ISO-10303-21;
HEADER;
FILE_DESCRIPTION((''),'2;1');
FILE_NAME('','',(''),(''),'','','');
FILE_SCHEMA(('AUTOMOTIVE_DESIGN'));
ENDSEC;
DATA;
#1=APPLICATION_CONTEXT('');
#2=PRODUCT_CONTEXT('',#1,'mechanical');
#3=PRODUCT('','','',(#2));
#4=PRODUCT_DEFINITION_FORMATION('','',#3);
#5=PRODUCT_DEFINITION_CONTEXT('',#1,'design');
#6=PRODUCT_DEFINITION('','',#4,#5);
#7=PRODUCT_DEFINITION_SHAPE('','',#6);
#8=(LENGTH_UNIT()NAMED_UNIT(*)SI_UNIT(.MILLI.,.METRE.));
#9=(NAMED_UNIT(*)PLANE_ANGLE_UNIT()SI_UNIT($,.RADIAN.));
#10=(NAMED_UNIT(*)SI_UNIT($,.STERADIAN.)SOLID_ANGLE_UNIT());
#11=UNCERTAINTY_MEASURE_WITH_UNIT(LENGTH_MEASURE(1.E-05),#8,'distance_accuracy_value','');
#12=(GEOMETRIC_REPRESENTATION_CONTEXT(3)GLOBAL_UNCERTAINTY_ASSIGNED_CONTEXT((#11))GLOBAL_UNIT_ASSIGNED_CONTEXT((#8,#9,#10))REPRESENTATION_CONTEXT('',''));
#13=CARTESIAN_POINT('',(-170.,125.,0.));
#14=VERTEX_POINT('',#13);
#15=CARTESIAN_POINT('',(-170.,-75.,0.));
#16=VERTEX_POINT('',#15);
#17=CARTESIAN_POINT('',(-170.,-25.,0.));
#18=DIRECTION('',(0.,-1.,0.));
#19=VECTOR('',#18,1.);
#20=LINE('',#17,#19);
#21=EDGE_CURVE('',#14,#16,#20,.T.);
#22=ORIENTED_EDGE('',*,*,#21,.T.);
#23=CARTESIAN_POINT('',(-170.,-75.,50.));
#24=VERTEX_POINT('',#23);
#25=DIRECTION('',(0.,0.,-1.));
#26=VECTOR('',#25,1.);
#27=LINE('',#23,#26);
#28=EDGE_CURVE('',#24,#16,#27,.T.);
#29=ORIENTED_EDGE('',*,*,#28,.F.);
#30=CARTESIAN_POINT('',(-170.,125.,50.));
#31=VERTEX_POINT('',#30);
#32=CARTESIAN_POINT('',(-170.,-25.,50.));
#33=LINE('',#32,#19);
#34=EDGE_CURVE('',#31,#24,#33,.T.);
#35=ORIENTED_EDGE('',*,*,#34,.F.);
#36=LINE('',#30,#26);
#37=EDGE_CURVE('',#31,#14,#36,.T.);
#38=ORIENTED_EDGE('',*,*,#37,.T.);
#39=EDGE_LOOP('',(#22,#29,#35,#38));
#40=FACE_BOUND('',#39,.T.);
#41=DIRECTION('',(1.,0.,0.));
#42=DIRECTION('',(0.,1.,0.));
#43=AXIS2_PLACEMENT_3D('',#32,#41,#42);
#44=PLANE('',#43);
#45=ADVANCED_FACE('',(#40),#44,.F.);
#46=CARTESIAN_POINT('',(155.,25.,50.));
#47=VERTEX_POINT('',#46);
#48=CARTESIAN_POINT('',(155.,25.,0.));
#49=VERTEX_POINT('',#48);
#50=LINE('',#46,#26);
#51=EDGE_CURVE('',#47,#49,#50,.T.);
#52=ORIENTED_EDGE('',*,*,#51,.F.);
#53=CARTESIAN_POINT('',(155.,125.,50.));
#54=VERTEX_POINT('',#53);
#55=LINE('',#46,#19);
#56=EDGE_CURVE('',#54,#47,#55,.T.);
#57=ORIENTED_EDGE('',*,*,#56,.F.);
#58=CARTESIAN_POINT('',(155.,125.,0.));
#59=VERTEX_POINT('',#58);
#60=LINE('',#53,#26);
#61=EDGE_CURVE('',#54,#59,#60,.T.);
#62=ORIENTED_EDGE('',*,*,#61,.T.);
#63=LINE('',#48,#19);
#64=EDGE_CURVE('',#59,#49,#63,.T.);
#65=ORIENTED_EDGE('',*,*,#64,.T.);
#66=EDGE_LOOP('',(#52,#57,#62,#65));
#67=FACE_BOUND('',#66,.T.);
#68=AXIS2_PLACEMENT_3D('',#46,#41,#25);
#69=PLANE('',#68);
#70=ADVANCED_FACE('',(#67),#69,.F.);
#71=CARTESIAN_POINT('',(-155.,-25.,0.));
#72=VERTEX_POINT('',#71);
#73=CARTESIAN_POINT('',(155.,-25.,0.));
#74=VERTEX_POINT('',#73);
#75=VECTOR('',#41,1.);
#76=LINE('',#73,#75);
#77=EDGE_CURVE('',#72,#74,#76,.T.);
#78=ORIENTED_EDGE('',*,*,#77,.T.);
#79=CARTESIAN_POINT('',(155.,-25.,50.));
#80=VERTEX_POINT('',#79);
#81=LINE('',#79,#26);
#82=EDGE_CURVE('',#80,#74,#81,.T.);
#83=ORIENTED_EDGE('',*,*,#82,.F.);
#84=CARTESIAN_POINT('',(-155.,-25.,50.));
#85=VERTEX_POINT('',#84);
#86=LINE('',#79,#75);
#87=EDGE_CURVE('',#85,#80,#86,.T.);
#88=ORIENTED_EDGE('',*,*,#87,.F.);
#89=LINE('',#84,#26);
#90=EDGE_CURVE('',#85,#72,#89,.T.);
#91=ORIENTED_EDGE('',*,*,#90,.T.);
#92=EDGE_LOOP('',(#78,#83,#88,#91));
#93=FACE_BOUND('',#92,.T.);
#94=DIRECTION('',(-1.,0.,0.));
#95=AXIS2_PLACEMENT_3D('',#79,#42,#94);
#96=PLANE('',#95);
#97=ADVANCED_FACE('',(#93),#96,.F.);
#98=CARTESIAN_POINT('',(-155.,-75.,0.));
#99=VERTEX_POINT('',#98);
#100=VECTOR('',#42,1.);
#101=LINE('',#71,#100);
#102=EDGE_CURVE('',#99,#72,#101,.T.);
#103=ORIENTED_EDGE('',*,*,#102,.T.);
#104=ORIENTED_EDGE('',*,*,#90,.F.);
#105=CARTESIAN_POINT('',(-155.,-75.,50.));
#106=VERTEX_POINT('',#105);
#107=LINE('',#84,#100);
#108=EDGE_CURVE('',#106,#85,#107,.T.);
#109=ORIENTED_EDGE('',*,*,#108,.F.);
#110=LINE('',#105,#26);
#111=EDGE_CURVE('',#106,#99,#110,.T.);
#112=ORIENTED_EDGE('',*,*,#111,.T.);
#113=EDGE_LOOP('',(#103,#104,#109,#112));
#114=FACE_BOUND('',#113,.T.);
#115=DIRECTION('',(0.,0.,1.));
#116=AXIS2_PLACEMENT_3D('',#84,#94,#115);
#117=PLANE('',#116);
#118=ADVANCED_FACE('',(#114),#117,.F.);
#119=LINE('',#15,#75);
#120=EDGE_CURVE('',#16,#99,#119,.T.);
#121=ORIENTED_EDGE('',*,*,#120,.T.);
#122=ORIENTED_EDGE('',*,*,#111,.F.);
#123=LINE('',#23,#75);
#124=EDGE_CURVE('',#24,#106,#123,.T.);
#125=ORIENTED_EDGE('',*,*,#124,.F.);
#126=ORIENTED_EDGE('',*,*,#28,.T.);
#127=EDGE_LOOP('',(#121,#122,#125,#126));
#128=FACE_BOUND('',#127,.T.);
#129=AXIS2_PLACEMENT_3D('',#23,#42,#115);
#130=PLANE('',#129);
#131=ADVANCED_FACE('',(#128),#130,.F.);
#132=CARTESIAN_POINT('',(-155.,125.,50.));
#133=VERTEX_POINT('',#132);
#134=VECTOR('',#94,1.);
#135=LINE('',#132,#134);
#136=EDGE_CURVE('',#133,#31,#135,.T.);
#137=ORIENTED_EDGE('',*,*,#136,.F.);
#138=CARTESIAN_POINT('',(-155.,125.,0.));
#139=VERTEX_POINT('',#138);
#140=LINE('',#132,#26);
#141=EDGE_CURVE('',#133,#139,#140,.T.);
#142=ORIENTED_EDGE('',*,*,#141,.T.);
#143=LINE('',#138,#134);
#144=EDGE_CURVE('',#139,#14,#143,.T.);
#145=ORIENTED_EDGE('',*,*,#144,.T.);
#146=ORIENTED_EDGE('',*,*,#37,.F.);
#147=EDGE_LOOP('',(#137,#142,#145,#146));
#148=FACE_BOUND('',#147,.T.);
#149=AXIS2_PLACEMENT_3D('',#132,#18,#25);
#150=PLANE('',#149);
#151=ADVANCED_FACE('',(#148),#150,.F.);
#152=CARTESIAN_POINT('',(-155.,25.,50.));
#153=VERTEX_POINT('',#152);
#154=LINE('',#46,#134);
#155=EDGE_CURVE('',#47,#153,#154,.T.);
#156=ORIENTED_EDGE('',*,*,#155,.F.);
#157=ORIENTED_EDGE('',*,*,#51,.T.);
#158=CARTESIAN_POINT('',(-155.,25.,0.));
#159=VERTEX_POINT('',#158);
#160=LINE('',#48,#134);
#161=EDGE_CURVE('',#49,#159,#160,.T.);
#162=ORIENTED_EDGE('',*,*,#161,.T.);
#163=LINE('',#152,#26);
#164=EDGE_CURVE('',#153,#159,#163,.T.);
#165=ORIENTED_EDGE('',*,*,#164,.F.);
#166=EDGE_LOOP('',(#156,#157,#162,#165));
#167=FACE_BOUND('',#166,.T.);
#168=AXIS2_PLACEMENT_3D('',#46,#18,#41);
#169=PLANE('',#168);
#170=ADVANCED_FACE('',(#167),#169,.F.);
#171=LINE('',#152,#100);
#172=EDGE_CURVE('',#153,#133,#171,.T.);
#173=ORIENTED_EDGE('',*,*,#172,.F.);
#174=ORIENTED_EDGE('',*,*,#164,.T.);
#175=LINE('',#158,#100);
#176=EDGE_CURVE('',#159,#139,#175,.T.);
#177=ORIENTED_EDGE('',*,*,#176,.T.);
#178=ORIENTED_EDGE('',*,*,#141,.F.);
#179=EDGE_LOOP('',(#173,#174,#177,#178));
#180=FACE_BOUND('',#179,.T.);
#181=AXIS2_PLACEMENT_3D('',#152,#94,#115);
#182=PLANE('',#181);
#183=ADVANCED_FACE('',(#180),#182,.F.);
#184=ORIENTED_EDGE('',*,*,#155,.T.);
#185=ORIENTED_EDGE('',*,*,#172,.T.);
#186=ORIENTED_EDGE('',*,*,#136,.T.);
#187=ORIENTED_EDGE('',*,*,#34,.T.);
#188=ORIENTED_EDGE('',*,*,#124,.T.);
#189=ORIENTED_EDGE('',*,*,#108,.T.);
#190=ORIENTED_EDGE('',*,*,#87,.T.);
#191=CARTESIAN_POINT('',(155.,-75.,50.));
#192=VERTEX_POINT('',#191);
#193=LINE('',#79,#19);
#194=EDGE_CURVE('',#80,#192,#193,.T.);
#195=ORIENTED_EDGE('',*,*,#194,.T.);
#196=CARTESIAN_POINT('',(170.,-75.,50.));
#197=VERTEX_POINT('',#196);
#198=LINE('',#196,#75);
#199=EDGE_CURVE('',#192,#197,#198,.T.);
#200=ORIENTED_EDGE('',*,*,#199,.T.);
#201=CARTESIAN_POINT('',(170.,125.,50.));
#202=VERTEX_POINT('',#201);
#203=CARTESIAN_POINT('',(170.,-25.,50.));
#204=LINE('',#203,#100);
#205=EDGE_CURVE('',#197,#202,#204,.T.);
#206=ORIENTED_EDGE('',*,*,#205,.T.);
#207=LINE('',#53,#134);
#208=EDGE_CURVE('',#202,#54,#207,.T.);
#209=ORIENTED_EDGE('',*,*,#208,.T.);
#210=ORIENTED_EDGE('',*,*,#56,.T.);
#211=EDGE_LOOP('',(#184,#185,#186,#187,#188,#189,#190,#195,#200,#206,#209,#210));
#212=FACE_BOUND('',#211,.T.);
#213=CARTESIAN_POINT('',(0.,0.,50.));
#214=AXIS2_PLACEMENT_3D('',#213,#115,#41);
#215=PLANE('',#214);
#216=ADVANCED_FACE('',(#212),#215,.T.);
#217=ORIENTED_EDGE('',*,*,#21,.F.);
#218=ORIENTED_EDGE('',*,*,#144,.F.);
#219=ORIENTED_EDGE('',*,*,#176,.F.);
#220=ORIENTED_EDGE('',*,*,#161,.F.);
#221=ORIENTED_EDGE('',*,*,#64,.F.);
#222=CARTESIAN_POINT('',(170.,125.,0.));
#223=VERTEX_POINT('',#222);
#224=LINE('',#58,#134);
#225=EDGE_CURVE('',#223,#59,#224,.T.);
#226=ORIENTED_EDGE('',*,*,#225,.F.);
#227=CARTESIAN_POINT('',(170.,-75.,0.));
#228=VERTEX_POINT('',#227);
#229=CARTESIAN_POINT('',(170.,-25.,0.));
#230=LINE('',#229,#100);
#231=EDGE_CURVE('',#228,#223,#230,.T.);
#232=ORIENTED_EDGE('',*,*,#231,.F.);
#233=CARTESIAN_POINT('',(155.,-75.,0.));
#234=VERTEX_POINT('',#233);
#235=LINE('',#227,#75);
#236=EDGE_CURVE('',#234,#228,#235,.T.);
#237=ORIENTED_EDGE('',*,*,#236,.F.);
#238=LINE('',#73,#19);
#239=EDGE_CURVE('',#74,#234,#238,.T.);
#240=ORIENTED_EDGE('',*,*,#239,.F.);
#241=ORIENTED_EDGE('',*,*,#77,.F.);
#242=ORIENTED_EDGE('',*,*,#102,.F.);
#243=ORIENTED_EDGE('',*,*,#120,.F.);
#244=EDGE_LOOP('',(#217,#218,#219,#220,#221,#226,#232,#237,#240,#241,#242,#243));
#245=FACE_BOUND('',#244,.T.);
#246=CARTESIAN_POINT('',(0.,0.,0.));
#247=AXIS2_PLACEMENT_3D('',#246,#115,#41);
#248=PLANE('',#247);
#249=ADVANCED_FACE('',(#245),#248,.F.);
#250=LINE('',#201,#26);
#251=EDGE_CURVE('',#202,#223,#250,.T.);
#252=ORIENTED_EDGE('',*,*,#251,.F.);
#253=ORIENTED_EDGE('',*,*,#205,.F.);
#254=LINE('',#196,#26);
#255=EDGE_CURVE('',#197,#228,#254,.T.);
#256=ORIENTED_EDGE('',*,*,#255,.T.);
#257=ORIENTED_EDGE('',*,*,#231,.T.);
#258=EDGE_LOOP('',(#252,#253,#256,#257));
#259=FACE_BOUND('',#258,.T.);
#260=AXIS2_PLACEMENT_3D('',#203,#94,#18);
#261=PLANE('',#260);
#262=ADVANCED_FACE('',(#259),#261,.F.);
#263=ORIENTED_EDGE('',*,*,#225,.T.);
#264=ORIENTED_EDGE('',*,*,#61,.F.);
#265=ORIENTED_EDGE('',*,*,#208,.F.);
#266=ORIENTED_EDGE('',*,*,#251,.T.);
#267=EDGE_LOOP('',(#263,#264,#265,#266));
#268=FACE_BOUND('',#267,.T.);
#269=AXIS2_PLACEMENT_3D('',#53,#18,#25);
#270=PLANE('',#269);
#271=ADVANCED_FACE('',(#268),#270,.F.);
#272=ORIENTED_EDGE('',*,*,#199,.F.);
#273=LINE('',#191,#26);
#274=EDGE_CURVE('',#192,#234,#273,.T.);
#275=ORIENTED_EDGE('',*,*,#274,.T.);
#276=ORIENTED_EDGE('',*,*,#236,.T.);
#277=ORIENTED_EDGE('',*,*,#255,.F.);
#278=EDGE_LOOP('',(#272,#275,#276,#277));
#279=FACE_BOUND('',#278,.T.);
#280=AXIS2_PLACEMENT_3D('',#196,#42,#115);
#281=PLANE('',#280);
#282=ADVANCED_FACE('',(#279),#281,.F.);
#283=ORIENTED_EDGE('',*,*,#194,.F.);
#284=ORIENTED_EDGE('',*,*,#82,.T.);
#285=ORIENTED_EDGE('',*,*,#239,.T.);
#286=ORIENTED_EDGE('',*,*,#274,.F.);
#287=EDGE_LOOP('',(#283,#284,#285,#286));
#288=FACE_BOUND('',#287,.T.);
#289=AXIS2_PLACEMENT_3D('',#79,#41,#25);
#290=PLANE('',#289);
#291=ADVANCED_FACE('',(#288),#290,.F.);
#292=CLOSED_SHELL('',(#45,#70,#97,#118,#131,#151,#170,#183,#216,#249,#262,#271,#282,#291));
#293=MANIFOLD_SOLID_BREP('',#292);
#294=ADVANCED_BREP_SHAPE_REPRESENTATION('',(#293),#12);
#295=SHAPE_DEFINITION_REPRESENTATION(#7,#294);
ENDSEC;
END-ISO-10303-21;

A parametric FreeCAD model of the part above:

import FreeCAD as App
import Part
import Sketcher
from FreeCAD import Vector
Q = App.Units.Quantity


def add_polygon(sketch, points):
    """Adds a closed chain of lines whose ends are joined by coincident constraints."""
    first, n = sketch.GeometryCount, len(points)
    for a, b in zip(points, points[1:] + points[:1]):
        sketch.addGeometry(Part.LineSegment(App.Vector(*a, 0), App.Vector(*b, 0)), False)
    for i in range(n):
        sketch.addConstraint(Sketcher.Constraint("Coincident", first + i, 2, first + (i + 1) % n, 1))

doc = App.newDocument("Part")
body = doc.addObject("PartDesign::Body", "Body")

# Sketch on XY plane
sketch1 = body.newObject("Sketcher::SketchObject", "Sketch")
sketch1.AttachmentSupport = (doc.getObject("XY_Plane"), [""])
sketch1.MapMode = "FlatFace"
add_polygon(sketch1, [(-155, -25), (155, -25), (155, -75), (170, -75), (170, 125), (155, 125), (155, 25), (-155, 25), (-155, 125), (-170, 125), (-170, -75), (-155, -75)])  # lines 0-11
sketch1.addConstraint([
    Sketcher.Constraint("Horizontal", 0),
    Sketcher.Constraint("Vertical", 1),
    Sketcher.Constraint("Horizontal", 2),
    Sketcher.Constraint("Vertical", 3),
    Sketcher.Constraint("Horizontal", 4),
    Sketcher.Constraint("Vertical", 5),
    Sketcher.Constraint("Horizontal", 6),
    Sketcher.Constraint("Vertical", 7),
    Sketcher.Constraint("Horizontal", 8),
    Sketcher.Constraint("Vertical", 9),
    Sketcher.Constraint("Horizontal", 10),
    Sketcher.Constraint("Vertical", 11),
    Sketcher.Constraint("Symmetric", 0, 2, 6, 2, -1, 1),
    Sketcher.Constraint("Symmetric", 4, 2, 7, 2, -2),
    Sketcher.Constraint("Symmetric", 2, 2, 9, 2, -2),
    Sketcher.Constraint("Vertical", 7, 2, 10, 2),
    Sketcher.Constraint("DistanceX", 0, 1, 0, 2, Q("310 mm")),
    Sketcher.Constraint("DistanceX", 2, 1, 2, 2, Q("15 mm")),
    Sketcher.Constraint("DistanceY", 1, 2, 1, 1, Q("50 mm")),
    Sketcher.Constraint("DistanceY", 3, 1, 3, 2, Q("200 mm")),
    Sketcher.Constraint("DistanceY", 5, 2, 5, 1, Q("100 mm")),
])
pad1 = body.newObject("PartDesign::Pad", "Pad")
pad1.Profile = sketch1
pad1.Length = 50

doc.recompute()
